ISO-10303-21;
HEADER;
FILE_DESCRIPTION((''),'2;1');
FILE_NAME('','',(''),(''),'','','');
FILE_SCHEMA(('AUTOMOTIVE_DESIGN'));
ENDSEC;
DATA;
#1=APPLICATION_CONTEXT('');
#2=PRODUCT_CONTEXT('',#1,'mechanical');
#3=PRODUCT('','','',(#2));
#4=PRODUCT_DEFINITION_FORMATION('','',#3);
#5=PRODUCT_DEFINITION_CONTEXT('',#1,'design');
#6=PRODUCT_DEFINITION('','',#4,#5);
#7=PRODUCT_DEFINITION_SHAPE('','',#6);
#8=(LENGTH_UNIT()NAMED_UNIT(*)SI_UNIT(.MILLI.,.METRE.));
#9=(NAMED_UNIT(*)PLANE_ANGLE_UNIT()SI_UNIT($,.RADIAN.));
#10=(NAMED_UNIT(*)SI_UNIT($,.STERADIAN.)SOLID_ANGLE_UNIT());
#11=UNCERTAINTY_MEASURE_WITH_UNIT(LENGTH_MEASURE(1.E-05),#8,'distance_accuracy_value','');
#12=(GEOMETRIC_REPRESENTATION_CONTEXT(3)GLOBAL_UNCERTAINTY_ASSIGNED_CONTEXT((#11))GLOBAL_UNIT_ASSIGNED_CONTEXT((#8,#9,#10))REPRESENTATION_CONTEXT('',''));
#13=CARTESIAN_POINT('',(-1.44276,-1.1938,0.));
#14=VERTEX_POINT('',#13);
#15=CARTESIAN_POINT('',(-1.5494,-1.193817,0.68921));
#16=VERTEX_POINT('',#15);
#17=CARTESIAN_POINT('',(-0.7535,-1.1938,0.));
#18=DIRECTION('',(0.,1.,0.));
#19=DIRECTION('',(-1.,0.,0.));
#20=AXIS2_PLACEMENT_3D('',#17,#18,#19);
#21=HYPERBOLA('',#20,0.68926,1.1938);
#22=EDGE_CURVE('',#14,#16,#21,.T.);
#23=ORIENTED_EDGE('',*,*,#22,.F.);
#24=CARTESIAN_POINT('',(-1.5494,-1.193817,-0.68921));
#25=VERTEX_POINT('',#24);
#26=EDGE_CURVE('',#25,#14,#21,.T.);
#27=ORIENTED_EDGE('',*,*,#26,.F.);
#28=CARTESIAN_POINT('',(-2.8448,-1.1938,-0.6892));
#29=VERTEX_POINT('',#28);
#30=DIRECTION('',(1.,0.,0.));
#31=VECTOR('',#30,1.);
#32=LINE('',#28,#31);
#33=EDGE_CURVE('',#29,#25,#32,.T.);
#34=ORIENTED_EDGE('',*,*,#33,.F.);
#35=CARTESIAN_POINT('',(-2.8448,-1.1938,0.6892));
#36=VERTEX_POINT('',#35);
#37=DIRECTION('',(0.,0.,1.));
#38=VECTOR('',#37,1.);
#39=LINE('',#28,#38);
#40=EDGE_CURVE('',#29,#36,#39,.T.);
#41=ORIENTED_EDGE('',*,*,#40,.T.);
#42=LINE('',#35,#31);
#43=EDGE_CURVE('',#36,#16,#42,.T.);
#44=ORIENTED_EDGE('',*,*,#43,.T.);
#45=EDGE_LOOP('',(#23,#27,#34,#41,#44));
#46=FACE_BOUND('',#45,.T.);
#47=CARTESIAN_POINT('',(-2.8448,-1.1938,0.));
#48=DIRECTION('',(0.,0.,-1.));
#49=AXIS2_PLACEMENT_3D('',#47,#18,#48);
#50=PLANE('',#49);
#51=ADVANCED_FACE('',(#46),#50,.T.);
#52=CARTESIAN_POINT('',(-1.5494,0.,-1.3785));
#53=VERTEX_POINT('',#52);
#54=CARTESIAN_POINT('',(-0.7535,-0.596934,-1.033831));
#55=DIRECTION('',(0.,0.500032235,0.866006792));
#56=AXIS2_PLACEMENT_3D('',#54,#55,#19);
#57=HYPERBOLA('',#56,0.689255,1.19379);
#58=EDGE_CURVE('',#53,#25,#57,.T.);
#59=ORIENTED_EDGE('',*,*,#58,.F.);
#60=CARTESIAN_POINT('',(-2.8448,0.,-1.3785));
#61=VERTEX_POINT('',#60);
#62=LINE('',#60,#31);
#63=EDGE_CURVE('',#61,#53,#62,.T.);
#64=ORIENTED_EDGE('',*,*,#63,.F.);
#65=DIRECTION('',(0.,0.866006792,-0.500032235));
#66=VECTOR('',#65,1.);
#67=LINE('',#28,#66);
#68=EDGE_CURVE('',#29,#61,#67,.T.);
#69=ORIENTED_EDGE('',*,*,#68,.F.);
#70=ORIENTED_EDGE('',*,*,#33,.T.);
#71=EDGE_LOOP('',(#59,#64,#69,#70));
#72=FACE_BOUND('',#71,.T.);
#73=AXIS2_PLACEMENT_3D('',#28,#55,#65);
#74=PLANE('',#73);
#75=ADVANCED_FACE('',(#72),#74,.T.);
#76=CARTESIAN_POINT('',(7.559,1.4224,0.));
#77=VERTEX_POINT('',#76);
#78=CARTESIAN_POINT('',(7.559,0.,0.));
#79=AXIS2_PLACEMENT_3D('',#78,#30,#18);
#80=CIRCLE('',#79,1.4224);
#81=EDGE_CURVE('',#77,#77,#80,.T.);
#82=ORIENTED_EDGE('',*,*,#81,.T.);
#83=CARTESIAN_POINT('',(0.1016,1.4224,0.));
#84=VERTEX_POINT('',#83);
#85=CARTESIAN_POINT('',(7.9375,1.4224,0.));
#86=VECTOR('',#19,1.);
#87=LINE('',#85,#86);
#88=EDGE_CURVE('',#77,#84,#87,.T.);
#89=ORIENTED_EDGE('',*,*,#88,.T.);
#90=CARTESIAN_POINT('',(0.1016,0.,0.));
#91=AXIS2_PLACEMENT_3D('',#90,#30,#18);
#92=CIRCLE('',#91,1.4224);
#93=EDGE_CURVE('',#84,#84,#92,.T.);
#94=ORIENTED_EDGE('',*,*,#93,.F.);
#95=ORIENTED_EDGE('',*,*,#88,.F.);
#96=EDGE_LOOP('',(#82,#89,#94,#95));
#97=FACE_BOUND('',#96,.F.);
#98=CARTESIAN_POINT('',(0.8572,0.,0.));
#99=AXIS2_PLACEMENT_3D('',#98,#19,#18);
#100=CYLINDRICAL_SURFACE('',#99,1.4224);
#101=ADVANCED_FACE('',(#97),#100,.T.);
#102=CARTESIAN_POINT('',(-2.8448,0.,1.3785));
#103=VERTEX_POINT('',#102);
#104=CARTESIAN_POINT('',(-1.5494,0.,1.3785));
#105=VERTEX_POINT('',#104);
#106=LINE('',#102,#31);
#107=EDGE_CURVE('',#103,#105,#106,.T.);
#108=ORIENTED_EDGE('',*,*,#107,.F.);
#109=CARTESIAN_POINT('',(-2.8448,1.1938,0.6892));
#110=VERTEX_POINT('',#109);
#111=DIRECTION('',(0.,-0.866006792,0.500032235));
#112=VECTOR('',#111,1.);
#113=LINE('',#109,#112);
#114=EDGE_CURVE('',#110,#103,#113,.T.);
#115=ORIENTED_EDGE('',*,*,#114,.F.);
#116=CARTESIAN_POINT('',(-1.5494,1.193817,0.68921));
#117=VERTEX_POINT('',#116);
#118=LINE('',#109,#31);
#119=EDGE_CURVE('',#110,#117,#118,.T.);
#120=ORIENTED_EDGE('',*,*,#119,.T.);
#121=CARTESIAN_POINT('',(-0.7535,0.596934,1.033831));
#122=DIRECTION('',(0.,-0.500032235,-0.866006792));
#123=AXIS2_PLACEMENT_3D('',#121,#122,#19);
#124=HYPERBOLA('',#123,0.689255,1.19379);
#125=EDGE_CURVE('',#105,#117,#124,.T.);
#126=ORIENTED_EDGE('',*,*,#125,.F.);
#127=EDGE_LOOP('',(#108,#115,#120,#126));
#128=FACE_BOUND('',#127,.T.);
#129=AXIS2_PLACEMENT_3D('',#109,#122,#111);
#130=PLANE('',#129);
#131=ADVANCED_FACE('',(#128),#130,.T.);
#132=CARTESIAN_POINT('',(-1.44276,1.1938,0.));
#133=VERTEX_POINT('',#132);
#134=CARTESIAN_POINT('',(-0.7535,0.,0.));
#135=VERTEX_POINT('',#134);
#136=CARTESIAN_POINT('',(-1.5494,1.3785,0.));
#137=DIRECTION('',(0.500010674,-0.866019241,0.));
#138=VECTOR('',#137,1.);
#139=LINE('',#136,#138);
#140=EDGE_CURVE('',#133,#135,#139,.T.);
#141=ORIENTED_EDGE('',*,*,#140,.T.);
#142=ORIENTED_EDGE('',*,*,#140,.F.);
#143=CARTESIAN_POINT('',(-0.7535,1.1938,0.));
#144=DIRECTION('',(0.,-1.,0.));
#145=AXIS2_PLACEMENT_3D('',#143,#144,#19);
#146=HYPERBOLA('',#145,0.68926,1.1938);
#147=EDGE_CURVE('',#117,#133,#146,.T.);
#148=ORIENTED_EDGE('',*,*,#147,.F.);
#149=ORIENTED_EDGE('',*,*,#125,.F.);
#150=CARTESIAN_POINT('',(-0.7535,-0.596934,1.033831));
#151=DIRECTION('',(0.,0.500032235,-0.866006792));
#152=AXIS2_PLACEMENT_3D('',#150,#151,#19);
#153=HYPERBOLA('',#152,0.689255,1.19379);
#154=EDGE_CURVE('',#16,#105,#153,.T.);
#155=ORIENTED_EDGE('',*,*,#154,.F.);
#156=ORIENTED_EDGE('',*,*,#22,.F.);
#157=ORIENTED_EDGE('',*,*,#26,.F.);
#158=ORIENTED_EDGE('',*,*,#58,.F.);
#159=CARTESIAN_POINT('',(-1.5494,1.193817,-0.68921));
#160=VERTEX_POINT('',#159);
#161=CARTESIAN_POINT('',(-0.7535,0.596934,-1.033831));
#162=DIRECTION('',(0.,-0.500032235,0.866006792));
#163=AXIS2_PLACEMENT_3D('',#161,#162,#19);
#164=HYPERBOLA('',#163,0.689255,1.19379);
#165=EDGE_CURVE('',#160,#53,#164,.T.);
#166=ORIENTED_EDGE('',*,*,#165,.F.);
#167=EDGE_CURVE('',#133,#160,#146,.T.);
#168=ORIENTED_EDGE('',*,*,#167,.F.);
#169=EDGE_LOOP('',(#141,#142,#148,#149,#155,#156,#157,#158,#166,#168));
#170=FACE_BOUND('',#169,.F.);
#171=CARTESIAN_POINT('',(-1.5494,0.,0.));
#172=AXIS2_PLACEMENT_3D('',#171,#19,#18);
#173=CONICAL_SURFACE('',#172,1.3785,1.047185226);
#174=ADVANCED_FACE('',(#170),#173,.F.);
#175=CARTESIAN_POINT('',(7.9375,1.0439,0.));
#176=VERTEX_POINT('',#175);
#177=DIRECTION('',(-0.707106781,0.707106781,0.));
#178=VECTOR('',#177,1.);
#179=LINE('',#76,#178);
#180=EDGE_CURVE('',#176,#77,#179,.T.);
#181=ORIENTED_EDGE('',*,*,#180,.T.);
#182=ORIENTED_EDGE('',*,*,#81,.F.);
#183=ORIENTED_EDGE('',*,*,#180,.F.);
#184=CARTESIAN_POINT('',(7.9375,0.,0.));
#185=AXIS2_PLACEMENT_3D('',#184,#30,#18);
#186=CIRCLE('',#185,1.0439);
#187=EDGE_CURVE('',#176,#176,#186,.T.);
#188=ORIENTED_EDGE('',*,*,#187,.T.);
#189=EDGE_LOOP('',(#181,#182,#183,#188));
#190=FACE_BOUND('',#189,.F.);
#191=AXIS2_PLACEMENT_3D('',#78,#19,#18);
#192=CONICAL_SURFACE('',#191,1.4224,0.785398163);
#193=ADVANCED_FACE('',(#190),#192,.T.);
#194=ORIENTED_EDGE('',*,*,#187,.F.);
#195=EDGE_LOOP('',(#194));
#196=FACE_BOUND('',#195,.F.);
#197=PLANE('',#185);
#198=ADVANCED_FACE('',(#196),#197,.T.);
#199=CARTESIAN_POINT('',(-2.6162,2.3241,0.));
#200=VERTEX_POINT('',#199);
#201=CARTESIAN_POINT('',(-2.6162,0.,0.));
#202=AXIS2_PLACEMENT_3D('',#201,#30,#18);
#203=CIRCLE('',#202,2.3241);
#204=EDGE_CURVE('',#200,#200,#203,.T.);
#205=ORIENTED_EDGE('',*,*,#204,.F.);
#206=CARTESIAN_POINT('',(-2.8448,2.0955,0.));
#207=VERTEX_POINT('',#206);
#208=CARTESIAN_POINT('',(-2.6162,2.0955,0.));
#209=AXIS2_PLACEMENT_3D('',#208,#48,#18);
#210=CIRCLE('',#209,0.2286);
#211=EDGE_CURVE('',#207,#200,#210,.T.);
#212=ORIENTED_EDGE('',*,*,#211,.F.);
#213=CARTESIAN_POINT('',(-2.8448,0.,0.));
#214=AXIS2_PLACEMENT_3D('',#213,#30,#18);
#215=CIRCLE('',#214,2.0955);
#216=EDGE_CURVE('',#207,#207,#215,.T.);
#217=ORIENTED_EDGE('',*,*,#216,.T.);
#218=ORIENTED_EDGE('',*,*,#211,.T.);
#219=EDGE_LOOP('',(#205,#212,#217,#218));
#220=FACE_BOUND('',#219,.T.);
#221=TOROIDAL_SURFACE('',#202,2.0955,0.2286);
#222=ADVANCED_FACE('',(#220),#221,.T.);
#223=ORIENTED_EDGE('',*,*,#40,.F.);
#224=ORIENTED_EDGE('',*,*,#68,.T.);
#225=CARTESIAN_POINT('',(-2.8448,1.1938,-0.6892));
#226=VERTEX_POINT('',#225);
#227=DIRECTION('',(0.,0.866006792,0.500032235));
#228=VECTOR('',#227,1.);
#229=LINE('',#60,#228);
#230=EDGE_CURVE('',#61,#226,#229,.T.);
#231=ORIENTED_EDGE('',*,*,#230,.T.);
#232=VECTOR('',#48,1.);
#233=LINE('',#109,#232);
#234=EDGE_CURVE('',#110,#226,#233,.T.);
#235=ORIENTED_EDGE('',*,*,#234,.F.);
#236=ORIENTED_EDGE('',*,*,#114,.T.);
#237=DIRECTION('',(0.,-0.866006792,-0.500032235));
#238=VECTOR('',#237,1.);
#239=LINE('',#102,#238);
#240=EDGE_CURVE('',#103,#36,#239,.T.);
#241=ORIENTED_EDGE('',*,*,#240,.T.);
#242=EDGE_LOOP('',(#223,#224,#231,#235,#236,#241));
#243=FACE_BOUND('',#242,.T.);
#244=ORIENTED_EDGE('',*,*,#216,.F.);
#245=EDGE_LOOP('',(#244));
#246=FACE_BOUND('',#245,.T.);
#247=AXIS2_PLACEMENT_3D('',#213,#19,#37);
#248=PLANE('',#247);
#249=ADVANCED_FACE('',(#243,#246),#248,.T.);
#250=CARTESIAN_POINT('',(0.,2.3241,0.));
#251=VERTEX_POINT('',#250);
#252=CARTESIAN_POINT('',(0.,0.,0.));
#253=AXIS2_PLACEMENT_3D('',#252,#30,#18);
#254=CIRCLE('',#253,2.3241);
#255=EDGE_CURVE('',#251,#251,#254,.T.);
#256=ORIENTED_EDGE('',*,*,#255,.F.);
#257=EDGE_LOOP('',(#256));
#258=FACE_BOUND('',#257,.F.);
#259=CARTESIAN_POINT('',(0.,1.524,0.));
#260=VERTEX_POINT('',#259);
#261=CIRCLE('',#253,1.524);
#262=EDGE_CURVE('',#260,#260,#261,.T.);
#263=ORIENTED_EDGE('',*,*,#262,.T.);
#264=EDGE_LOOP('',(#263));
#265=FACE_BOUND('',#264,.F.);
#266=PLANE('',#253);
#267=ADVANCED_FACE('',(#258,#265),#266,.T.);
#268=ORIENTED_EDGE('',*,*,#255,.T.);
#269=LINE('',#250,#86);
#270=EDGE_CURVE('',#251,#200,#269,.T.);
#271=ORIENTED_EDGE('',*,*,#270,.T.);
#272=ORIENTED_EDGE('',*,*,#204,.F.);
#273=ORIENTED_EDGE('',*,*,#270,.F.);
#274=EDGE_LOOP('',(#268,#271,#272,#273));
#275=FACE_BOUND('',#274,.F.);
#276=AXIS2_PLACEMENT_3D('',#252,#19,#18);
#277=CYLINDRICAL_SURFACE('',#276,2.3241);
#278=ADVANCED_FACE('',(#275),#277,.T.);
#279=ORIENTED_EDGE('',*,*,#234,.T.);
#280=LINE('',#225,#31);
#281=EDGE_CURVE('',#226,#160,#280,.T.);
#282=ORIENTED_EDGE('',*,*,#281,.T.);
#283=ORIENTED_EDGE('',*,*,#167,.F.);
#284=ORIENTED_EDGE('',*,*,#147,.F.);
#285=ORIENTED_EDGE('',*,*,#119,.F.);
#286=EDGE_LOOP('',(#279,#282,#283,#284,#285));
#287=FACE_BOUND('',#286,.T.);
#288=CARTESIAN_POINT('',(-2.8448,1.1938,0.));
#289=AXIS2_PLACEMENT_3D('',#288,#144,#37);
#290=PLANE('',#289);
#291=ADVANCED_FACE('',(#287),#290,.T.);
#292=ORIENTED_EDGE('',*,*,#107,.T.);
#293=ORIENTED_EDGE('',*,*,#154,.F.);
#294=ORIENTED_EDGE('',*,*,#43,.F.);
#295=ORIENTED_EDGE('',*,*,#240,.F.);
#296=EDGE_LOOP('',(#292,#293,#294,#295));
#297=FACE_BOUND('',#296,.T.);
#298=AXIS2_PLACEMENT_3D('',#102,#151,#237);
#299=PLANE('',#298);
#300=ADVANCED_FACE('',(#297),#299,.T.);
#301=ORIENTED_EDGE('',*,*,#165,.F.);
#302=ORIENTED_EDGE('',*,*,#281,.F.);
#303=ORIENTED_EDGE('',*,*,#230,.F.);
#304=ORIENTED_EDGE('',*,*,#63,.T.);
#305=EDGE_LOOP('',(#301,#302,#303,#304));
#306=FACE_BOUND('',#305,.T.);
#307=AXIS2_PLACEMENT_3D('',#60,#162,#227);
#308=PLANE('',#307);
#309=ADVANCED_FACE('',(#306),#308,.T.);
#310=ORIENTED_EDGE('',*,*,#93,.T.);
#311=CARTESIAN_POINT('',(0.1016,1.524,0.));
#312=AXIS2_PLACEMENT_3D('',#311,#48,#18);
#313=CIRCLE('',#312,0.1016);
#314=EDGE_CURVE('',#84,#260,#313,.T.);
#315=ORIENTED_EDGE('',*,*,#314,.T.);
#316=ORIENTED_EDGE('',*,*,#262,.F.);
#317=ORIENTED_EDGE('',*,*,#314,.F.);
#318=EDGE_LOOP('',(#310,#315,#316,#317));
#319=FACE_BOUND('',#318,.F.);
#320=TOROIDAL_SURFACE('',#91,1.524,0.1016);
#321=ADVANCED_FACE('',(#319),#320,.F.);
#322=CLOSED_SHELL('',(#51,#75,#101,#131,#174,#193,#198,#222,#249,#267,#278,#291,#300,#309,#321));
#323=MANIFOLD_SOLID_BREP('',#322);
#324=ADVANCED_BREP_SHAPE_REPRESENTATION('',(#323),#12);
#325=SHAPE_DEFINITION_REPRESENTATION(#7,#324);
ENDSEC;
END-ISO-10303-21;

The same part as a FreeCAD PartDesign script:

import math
import FreeCAD as App
import Part
import Sketcher
Q = App.Units.Quantity


def edges_at(feature, points):
    """Names of the edges that pass closest to the given points."""
    edges = feature.Shape.Edges
    near = lambda p: min(range(len(edges)), key=lambda i: edges[i].distToShape(Part.Vertex(*p))[0])
    return sorted({f"Edge{near(p) + 1}" for p in points})

doc = App.newDocument("Part")
body = doc.addObject("PartDesign::Body", "Body")

# Sketch on XY plane
sketch1 = body.newObject("Sketcher::SketchObject", "Sketch")
sketch1.AttachmentSupport = (doc.getObject("XY_Plane"), [""])
sketch1.MapMode = "FlatFace"
sketch1.addGeometry(Part.LineSegment(App.Vector(-1.5494, 1.3785, 0), App.Vector(-0.7535, 0, 0)), False)
sketch1.addGeometry(Part.LineSegment(App.Vector(-0.7535, 0, 0), App.Vector(7.9375, 0, 0)), False)
sketch1.addGeometry(Part.LineSegment(App.Vector(7.9375, 0, 0), App.Vector(7.9375, 1.4224, 0)), False)
sketch1.addGeometry(Part.LineSegment(App.Vector(7.9375, 1.4224, 0), App.Vector(0, 1.4224, 0)), False)
sketch1.addGeometry(Part.LineSegment(App.Vector(0, 1.4224, 0), App.Vector(0, 2.3241, 0)), False)
sketch1.addGeometry(Part.LineSegment(App.Vector(0, 2.3241, 0), App.Vector(-2.8448, 2.3241, 0)), False)
sketch1.addGeometry(Part.LineSegment(App.Vector(-2.8448, 2.3241, 0), App.Vector(-2.8448, 1.3785, 0)), False)
sketch1.addGeometry(Part.LineSegment(App.Vector(-2.8448, 1.3785, 0), App.Vector(-1.5494, 1.3785, 0)), False)
sketch1.addConstraint(Sketcher.Constraint("Coincident", 0, 2, 1, 1))
sketch1.addConstraint(Sketcher.Constraint("Coincident", 1, 2, 2, 1))
sketch1.addConstraint(Sketcher.Constraint("Coincident", 2, 2, 3, 1))
sketch1.addConstraint(Sketcher.Constraint("Coincident", 3, 2, 4, 1))
sketch1.addConstraint(Sketcher.Constraint("Coincident", 4, 2, 5, 1))
sketch1.addConstraint(Sketcher.Constraint("Coincident", 5, 2, 6, 1))
sketch1.addConstraint(Sketcher.Constraint("Coincident", 6, 2, 7, 1))
sketch1.addConstraint(Sketcher.Constraint("Coincident", 7, 2, 0, 1))
sketch1.addConstraint(Sketcher.Constraint("Horizontal", 1))
sketch1.addConstraint(Sketcher.Constraint("Vertical", 2))
sketch1.addConstraint(Sketcher.Constraint("Horizontal", 3))
sketch1.addConstraint(Sketcher.Constraint("Vertical", 4))
sketch1.addConstraint(Sketcher.Constraint("Horizontal", 5))
sketch1.addConstraint(Sketcher.Constraint("Vertical", 6))
sketch1.addConstraint(Sketcher.Constraint("Horizontal", 7))
sketch1.addConstraint(Sketcher.Constraint("PointOnObject", 0, 2, -1))
sketch1.addConstraint(Sketcher.Constraint("PointOnObject", 3, 2, -2))
sketch1.addConstraint(Sketcher.Constraint("DistanceX", 3, 2, 3, 1, Q("0.3125 in")))
sketch1.addConstraint(Sketcher.Constraint("DistanceX", 5, 2, 5, 1, Q("0.112 in")))
sketch1.addConstraint(Sketcher.Constraint("DistanceX", 7, 1, 7, 2, Q("0.051 in")))
sketch1.addConstraint(Sketcher.Constraint("Angle", 0, Q("-59.9993 deg")))
sketch1.addConstraint(Sketcher.Constraint("DistanceY", 2, 1, 2, 2, Q("0.056 in")))
sketch1.addConstraint(Sketcher.Constraint("DistanceY", 4, 1, 4, 2, Q("0.0355 in")))
sketch1.addConstraint(Sketcher.Constraint("DistanceX", 1, 1, 1, 2, Q("8.691 mm")))
revolution = body.newObject("PartDesign::Revolution", "Revolution")
revolution.Profile = sketch1
revolution.ReferenceAxis = (sketch1, ["H_Axis"])
revolution.Angle = 360

# Sketch on YZ plane
sketch2 = body.newObject("Sketcher::SketchObject", "Sketch001")
sketch2.AttachmentSupport = (doc.getObject("YZ_Plane"), [""])
sketch2.MapMode = "FlatFace"
sketch2.AttachmentOffset = App.Placement(App.Vector(0, 0, -0.112 * 25.4), App.Rotation())
sketch2.addGeometry(Part.LineSegment(App.Vector(1.1938, 0.6892, 0), App.Vector(0, 1.3785, 0)), False)
sketch2.addGeometry(Part.ArcOfCircle(Part.Circle(App.Vector(0, 0, 0), App.Vector(0, 0, 1), 1.3785), math.radians(29.998533), math.radians(90)), False)
sketch2.addGeometry(Part.ArcOfCircle(Part.Circle(App.Vector(0, 0, 0), App.Vector(0, 0, 1), 1.3785), math.radians(90), math.radians(150.001467)), False)
sketch2.addGeometry(Part.LineSegment(App.Vector(0, 1.3785, 0), App.Vector(-1.1938, 0.6892, 0)), False)
sketch2.addGeometry(Part.ArcOfCircle(Part.Circle(App.Vector(0, 0, 0), App.Vector(0, 0, 1), 1.3785), math.radians(-29.998533), math.radians(29.998533)), False)
sketch2.addGeometry(Part.LineSegment(App.Vector(1.1938, 0.6892, 0), App.Vector(1.1938, -0.6892, 0)), False)
sketch2.addGeometry(Part.LineSegment(App.Vector(-1.1938, 0.6892, 0), App.Vector(-1.1938, -0.6892, 0)), False)
sketch2.addGeometry(Part.ArcOfCircle(Part.Circle(App.Vector(0, 0, 0), App.Vector(0, 0, 1), 1.3785), math.radians(150.001467), math.radians(209.998533)), False)
sketch2.addGeometry(Part.LineSegment(App.Vector(-1.1938, -0.6892, 0), App.Vector(0, -1.3785, 0)), False)
sketch2.addGeometry(Part.ArcOfCircle(Part.Circle(App.Vector(0, 0, 0), App.Vector(0, 0, 1), 1.3785), math.radians(-150.001467), math.radians(-90)), False)
sketch2.addGeometry(Part.ArcOfCircle(Part.Circle(App.Vector(0, 0, 0), App.Vector(0, 0, 1), 1.3785), math.radians(-90), math.radians(-29.998533)), False)
sketch2.addGeometry(Part.LineSegment(App.Vector(0, -1.3785, 0), App.Vector(1.1938, -0.6892, 0)), False)
sketch2.addConstraint(Sketcher.Constraint("Coincident", 0, 1, 1, 1))
sketch2.addConstraint(Sketcher.Constraint("Coincident", 1, 2, 0, 2))
sketch2.addConstraint(Sketcher.Constraint("Coincident", 2, 1, 3, 1))
sketch2.addConstraint(Sketcher.Constraint("Coincident", 3, 2, 2, 2))
sketch2.addConstraint(Sketcher.Constraint("Coincident", 4, 1, 5, 2))
sketch2.addConstraint(Sketcher.Constraint("Coincident", 5, 1, 4, 2))
sketch2.addConstraint(Sketcher.Constraint("Coincident", 6, 1, 7, 1))
sketch2.addConstraint(Sketcher.Constraint("Coincident", 7, 2, 6, 2))
sketch2.addConstraint(Sketcher.Constraint("Coincident", 8, 1, 9, 1))
sketch2.addConstraint(Sketcher.Constraint("Coincident", 9, 2, 8, 2))
sketch2.addConstraint(Sketcher.Constraint("Coincident", 10, 1, 11, 1))
sketch2.addConstraint(Sketcher.Constraint("Coincident", 11, 2, 10, 2))
sketch2.addConstraint(Sketcher.Constraint("Vertical", 5))
sketch2.addConstraint(Sketcher.Constraint("Vertical", 6))
sketch2.addConstraint(Sketcher.Constraint("Coincident", 1, 3, -1, 1))
sketch2.addConstraint(Sketcher.Constraint("Coincident", 2, 3, -1, 1))
sketch2.addConstraint(Sketcher.Constraint("Coincident", 4, 3, -1, 1))
sketch2.addConstraint(Sketcher.Constraint("Coincident", 7, 3, -1, 1))
sketch2.addConstraint(Sketcher.Constraint("Coincident", 9, 3, -1, 1))
sketch2.addConstraint(Sketcher.Constraint("Coincident", 10, 3, -1, 1))
sketch2.addConstraint(Sketcher.Constraint("Coincident", 2, 1, 1, 2))
sketch2.addConstraint(Sketcher.Constraint("Coincident", 5, 1, 0, 1))
sketch2.addConstraint(Sketcher.Constraint("Coincident", 6, 1, 3, 2))
sketch2.addConstraint(Sketcher.Constraint("Coincident", 8, 1, 7, 2))
sketch2.addConstraint(Sketcher.Constraint("Coincident", 10, 1, 9, 2))
sketch2.addConstraint(Sketcher.Constraint("PointOnObject", 1, 2, -2))
sketch2.addConstraint(Sketcher.Constraint("PointOnObject", 9, 2, -2))
sketch2.addConstraint(Sketcher.Constraint("Parallel", 0, 8))
sketch2.addConstraint(Sketcher.Constraint("Parallel", 3, 11))
sketch2.addConstraint(Sketcher.Constraint("Radius", 1, Q("1.3785 mm")))
sketch2.addConstraint(Sketcher.Constraint("DistanceX", -1, 1, 0, 1, Q("0.047 in")))
pad1 = body.newObject("PartDesign::Pad", "Pad")
pad1.Profile = sketch2
pad1.Type = "UpToFirst"
doc.recompute()

fillet = body.newObject("PartDesign::Fillet", "Fillet")
fillet.Base = (pad1, edges_at(pad1, [(-2.845, -2.324, 0)]))
fillet.Radius = Q("0.009 in")
doc.recompute()

chamfer = body.newObject("PartDesign::Chamfer", "Chamfer")
chamfer.Base = (fillet, edges_at(fillet, [(7.938, -1.422, 0)]))
chamfer.ChamferType = "Two distances"
chamfer.Size = Q("0.0149016 in")
chamfer.Size2 = Q("0.0149016 in")
doc.recompute()

fillet2 = body.newObject("PartDesign::Fillet", "Fillet001")
fillet2.Base = (chamfer, edges_at(chamfer, [(0, -1.422, 0)]))
fillet2.Radius = Q("0.004 in")

doc.recompute()
